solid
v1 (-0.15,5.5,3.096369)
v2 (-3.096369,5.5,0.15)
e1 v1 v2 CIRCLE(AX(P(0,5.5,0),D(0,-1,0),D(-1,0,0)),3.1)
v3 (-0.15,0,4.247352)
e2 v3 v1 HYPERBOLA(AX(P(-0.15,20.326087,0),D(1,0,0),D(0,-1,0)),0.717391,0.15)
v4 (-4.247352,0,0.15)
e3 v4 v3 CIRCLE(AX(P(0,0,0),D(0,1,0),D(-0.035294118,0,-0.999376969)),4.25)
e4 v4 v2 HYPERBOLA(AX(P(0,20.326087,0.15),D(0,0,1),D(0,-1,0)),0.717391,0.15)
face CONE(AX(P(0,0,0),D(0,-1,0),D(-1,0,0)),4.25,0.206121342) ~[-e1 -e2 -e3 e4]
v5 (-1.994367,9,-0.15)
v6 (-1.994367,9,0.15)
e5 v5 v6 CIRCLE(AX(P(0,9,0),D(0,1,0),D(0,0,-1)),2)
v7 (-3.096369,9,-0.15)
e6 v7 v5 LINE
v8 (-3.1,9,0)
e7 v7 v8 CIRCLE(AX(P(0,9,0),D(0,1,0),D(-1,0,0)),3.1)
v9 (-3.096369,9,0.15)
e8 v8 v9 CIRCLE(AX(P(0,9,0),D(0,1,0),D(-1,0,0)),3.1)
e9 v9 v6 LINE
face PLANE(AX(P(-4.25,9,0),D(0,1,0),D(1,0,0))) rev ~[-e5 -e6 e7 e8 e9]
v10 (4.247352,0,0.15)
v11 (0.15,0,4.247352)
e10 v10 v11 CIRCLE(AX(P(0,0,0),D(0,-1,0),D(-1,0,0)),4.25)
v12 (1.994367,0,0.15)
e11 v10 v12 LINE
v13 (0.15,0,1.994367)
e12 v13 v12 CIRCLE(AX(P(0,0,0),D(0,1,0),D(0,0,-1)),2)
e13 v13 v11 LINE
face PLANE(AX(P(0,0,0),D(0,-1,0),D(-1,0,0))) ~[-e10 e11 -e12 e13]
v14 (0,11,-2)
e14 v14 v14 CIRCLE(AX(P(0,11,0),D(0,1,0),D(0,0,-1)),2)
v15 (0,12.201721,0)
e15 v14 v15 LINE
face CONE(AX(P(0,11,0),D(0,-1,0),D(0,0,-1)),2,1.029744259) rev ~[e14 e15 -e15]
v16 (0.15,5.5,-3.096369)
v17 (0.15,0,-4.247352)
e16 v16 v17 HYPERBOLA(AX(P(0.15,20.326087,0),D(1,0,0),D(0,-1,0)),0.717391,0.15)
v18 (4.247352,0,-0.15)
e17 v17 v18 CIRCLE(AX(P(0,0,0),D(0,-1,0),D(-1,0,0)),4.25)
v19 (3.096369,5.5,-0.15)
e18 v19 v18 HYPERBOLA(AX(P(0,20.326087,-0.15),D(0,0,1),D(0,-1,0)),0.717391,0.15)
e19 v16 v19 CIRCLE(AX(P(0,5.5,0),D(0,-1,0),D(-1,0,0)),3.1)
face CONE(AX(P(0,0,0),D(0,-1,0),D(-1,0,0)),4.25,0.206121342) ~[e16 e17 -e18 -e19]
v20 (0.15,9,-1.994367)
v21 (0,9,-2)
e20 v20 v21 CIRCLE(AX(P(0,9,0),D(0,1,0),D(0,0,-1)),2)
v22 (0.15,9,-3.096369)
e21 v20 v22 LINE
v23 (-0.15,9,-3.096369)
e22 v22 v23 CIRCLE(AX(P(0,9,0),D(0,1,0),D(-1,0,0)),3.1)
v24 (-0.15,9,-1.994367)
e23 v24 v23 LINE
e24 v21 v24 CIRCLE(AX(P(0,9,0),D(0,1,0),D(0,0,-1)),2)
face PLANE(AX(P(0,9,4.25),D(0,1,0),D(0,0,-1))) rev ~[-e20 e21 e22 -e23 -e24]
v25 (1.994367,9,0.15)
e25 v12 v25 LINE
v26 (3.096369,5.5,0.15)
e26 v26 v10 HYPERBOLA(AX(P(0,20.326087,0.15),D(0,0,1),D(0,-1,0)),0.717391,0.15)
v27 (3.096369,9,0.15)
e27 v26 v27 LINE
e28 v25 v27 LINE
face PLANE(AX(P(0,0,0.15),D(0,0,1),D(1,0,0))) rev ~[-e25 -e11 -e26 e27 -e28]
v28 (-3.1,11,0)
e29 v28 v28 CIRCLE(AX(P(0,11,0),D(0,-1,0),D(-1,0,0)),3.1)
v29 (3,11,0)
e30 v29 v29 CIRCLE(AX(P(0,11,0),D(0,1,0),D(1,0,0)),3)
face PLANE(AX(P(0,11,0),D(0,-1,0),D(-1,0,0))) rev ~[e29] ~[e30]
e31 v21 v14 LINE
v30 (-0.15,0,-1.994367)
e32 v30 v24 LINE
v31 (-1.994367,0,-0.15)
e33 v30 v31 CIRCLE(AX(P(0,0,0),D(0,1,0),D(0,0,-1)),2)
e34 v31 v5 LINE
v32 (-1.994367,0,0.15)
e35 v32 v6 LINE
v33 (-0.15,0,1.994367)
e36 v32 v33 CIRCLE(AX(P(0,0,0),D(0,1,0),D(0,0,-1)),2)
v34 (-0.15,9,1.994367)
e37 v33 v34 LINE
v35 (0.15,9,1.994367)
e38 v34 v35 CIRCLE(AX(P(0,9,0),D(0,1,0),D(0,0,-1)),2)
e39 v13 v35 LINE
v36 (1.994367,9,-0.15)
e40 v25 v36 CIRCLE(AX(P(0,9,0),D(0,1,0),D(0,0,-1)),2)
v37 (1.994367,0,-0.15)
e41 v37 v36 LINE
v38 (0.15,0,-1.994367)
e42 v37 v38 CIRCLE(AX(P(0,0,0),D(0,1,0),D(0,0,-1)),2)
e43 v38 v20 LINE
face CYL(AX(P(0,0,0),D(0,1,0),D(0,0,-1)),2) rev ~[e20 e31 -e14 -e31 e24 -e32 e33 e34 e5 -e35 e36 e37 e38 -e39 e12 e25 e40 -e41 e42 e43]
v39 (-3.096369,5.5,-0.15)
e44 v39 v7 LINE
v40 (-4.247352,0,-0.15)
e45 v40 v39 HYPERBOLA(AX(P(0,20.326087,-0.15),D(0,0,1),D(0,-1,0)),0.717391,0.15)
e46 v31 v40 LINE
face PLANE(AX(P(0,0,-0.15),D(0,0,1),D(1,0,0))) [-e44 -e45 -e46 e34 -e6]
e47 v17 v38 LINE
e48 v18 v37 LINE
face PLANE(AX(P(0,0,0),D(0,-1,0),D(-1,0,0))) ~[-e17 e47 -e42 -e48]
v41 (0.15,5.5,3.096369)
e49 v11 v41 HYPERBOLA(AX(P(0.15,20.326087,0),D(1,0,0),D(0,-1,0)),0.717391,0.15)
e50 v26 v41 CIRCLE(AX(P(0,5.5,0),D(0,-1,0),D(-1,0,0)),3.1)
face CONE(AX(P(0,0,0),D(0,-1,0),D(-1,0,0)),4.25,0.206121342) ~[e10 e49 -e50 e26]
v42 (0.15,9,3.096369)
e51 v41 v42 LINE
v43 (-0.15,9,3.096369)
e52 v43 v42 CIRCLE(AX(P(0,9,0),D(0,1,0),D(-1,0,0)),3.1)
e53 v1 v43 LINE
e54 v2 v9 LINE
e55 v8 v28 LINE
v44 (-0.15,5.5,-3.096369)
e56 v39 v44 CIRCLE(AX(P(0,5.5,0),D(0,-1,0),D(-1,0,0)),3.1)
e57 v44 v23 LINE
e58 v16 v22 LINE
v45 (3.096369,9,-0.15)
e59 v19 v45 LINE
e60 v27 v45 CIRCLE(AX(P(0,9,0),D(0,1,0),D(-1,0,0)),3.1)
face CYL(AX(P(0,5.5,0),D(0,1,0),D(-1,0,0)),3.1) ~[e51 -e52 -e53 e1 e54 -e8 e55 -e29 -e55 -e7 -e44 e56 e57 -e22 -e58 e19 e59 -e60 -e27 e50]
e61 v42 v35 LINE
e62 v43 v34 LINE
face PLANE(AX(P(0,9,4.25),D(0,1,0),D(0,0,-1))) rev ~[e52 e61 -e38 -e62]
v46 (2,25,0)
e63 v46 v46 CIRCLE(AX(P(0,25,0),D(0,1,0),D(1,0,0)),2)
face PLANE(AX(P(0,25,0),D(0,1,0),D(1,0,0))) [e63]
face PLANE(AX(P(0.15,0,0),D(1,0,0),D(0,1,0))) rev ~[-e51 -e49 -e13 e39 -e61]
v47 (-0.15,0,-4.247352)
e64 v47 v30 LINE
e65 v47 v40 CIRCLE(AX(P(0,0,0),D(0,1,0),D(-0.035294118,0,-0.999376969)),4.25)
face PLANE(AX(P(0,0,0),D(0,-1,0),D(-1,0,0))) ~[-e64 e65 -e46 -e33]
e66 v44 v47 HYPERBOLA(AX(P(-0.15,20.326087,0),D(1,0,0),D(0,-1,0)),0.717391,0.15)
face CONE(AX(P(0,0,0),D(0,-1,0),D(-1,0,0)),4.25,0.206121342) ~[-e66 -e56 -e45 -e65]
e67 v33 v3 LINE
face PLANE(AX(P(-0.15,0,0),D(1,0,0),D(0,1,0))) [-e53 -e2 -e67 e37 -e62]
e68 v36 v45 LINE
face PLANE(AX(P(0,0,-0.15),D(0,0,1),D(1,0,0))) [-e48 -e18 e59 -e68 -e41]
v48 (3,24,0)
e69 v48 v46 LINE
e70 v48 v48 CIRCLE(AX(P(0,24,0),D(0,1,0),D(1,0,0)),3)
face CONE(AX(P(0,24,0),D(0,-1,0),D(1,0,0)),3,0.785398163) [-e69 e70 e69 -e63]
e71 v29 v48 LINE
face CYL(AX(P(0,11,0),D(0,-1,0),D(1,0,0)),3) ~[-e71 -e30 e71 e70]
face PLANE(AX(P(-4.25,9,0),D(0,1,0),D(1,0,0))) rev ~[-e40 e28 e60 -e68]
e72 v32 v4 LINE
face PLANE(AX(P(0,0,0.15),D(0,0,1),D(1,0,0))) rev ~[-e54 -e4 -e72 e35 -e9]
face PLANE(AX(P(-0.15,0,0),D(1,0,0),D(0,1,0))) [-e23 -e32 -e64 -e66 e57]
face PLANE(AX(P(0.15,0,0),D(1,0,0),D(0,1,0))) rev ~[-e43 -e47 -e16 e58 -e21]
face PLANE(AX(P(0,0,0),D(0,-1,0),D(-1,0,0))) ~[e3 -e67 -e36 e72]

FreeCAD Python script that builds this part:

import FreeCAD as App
import Part
import Sketcher
from FreeCAD import Vector
Q = App.Units.Quantity


def edges_at(feature, points):
    """Names of the edges that pass closest to the given points."""
    edges = feature.Shape.Edges
    near = lambda p: min(range(len(edges)), key=lambda i: edges[i].distToShape(Part.Vertex(*p))[0])
    return sorted({f"Edge{near(p) + 1}" for p in points})

doc = App.newDocument("Part")
body = doc.addObject("PartDesign::Body", "Body")

sketch1 = body.newObject("Sketcher::SketchObject", "Sketch")
sketch1.AttachmentSupport = (doc.getObject("XY_Plane"), [""])
sketch1.MapMode = "FlatFace"
sketch1.addGeometry(Part.LineSegment(Vector(-4.2, 0, 0), Vector(0, 0, 0)), False)
sketch1.addGeometry(Part.LineSegment(Vector(0, 0, 0), Vector(0, 11, 0)), False)
sketch1.addGeometry(Part.LineSegment(Vector(0, 11, 0), Vector(-3.1, 11, 0)), False)
sketch1.addGeometry(Part.LineSegment(Vector(-3.1, 11, 0), Vector(-3.1, 5.5, 0)), False)
sketch1.addGeometry(Part.LineSegment(Vector(-3.1, 5.5, 0), Vector(-4.2, 0, 0)), False)
sketch1.addConstraint(Sketcher.Constraint("Coincident", 0, 2, 1, 1))
sketch1.addConstraint(Sketcher.Constraint("Coincident", 1, 2, 2, 1))
sketch1.addConstraint(Sketcher.Constraint("Coincident", 2, 2, 3, 1))
sketch1.addConstraint(Sketcher.Constraint("Coincident", 3, 2, 4, 1))
sketch1.addConstraint(Sketcher.Constraint("Coincident", 4, 2, 0, 1))
sketch1.addConstraint(Sketcher.Constraint("Horizontal", 0))
sketch1.addConstraint(Sketcher.Constraint("Vertical", 1))
sketch1.addConstraint(Sketcher.Constraint("Horizontal", 2))
sketch1.addConstraint(Sketcher.Constraint("Vertical", 3))
sketch1.addConstraint(Sketcher.Constraint("Coincident", 0, 2, -1, 1))
sketch1.addConstraint(Sketcher.Constraint("DistanceX", 2, 2, 2, 1, Q("3.1 mm")))
sketch1.addConstraint(Sketcher.Constraint("DistanceY", 3, 2, 3, 1, Q("5.5 mm")))
sketch1.addConstraint(Sketcher.Constraint("DistanceX", 0, 1, 0, 2, Q("4.25 mm")))
sketch1.addConstraint(Sketcher.Constraint("DistanceY", -1, 1, 3, 2, Q("5.5 mm")))
revolution = body.newObject("PartDesign::Revolution", "Revolution")
revolution.Profile = sketch1
revolution.ReferenceAxis = (sketch1, ["V_Axis"])
revolution.Angle = 360

sketch2 = body.newObject("Sketcher::SketchObject", "Sketch001")
sketch2.AttachmentSupport = (doc.getObject("XZ_Plane"), [""])
sketch2.MapMode = "FlatFace"
sketch2.AttachmentOffset = App.Placement(Vector(0, 0, -11), App.Rotation())
sketch2.addGeometry(Part.Circle(Vector(0, 0, 0), Vector(0, 0, 1), 3), False)
sketch2.addConstraint(Sketcher.Constraint("Coincident", 0, 3, -1, 1))
sketch2.addConstraint(Sketcher.Constraint("Diameter", 0, Q("6 mm")))
pad1 = body.newObject("PartDesign::Pad", "Pad")
pad1.Profile = sketch2
pad1.Length = 14
pad1.Reversed = True
doc.recompute()

chamfer = body.newObject("PartDesign::Chamfer", "Chamfer")
chamfer.Base = (pad1, edges_at(pad1, [(-3, 25, 0)]))
chamfer.Size = 1

sketch3 = body.newObject("Sketcher::SketchObject", "Sketch002")
sketch3.AttachmentSupport = (doc.getObject("XZ_Plane"), [""])
sketch3.MapMode = "FlatFace"
sketch3.addGeometry(Part.Circle(Vector(0, 0, 0), Vector(0, 0, 1), 2), False)
sketch3.addConstraint(Sketcher.Constraint("Coincident", 0, 3, -1, 1))
sketch3.addConstraint(Sketcher.Constraint("Diameter", 0, Q("4 mm")))
doc.recompute()
hole = body.newObject("PartDesign::Hole", "Hole")
hole.Profile = sketch3
hole.ThreadType = "None"
hole.Diameter = 4
hole.DepthType = "Dimension"
hole.Depth = 11
hole.DrillPoint = "Angled"
hole.DrillPointAngle = 118

sketch4 = body.newObject("Sketcher::SketchObject", "Sketch003")
sketch4.AttachmentSupport = (doc.getObject("YZ_Plane"), [""])
sketch4.MapMode = "FlatFace"
sketch4.addGeometry(Part.LineSegment(Vector(0, 4, 0), Vector(0, -4, 0)), False)
sketch4.addGeometry(Part.LineSegment(Vector(0, -4, 0), Vector(9, -4, 0)), False)
sketch4.addGeometry(Part.LineSegment(Vector(9, -4, 0), Vector(9, 4, 0)), False)
sketch4.addGeometry(Part.LineSegment(Vector(9, 4, 0), Vector(0, 4, 0)), False)
sketch4.addConstraint(Sketcher.Constraint("Coincident", 0, 2, 1, 1))
sketch4.addConstraint(Sketcher.Constraint("Coincident", 1, 2, 2, 1))
sketch4.addConstraint(Sketcher.Constraint("Coincident", 2, 2, 3, 1))
sketch4.addConstraint(Sketcher.Constraint("Coincident", 3, 2, 0, 1))
sketch4.addConstraint(Sketcher.Constraint("Vertical", 0))
sketch4.addConstraint(Sketcher.Constraint("Horizontal", 1))
sketch4.addConstraint(Sketcher.Constraint("Vertical", 2))
sketch4.addConstraint(Sketcher.Constraint("Horizontal", 3))
sketch4.addConstraint(Sketcher.Constraint("Symmetric", 0, 2, 3, 2, -1, 1))
sketch4.addConstraint(Sketcher.Constraint("DistanceX", 1, 1, 1, 2, Q("9 mm")))
sketch4.addConstraint(Sketcher.Constraint("DistanceY", 0, 2, 0, 1, Q("8.5 mm")))
pocket1 = body.newObject("PartDesign::Pocket", "Pocket")
pocket1.Profile = sketch4
pocket1.Length = 0.3
pocket1.Midplane = True

sketch5 = body.newObject("Sketcher::SketchObject", "Sketch004")
sketch5.AttachmentSupport = (doc.getObject("XY_Plane"), [""])
sketch5.MapMode = "FlatFace"
sketch5.addGeometry(Part.LineSegment(Vector(-4, 0, 0), Vector(4, 0, 0)), False)
sketch5.addGeometry(Part.LineSegment(Vector(4, 0, 0), Vector(4, 9, 0)), False)
sketch5.addGeometry(Part.LineSegment(Vector(4, 9, 0), Vector(-4, 9, 0)), False)
sketch5.addGeometry(Part.LineSegment(Vector(-4, 9, 0), Vector(-4, 0, 0)), False)
sketch5.addConstraint(Sketcher.Constraint("Coincident", 0, 2, 1, 1))
sketch5.addConstraint(Sketcher.Constraint("Coincident", 1, 2, 2, 1))
sketch5.addConstraint(Sketcher.Constraint("Coincident", 2, 2, 3, 1))
sketch5.addConstraint(Sketcher.Constraint("Coincident", 3, 2, 0, 1))
sketch5.addConstraint(Sketcher.Constraint("Horizontal", 0))
sketch5.addConstraint(Sketcher.Constraint("Vertical", 1))
sketch5.addConstraint(Sketcher.Constraint("Horizontal", 2))
sketch5.addConstraint(Sketcher.Constraint("Vertical", 3))
sketch5.addConstraint(Sketcher.Constraint("Symmetric", 0, 2, 3, 2, -1, 1))
sketch5.addConstraint(Sketcher.Constraint("DistanceY", 1, 1, 1, 2, Q("9 mm")))
sketch5.addConstraint(Sketcher.Constraint("DistanceX", 0, 1, 0, 2, Q("8.5 mm")))
pocket2 = body.newObject("PartDesign::Pocket", "Pocket001")
pocket2.Profile = sketch5
pocket2.Length = 0.3
pocket2.Midplane = True

doc.recompute()
